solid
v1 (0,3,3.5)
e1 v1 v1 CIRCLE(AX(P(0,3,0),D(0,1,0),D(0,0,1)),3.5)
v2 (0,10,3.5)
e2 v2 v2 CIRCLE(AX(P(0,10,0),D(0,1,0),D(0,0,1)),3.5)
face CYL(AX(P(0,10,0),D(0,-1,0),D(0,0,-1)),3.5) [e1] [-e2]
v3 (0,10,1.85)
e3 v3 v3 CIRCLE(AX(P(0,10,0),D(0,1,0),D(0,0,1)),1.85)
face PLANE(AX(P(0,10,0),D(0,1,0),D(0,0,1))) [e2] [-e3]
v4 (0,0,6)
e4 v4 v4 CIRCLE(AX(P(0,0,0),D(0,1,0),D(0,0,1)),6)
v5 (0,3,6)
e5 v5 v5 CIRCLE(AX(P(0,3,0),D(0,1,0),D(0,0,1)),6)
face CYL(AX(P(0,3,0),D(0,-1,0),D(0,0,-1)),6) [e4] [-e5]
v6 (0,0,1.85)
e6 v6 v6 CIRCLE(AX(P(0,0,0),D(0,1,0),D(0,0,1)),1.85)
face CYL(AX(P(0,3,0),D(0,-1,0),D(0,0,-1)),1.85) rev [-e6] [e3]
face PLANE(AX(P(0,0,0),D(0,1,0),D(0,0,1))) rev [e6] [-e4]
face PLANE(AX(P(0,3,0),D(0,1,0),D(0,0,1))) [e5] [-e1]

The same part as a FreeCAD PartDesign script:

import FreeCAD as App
import Part
import Sketcher
from FreeCAD import Vector

doc = App.newDocument("Part")
body = doc.addObject("PartDesign::Body", "Body")

# Sketch on XZ plane
sketch1 = body.newObject("Sketcher::SketchObject", "Sketch")
sketch1.AttachmentSupport = (doc.getObject("XZ_Plane"), [""])
sketch1.MapMode = "FlatFace"
sketch1.addGeometry([
    Part.Circle(Vector(0, 0, 0), Vector(0, 0, 1), 6),
    Part.Circle(Vector(0, 0, 0), Vector(0, 0, 1), 1.9),
], False)
sketch1.addConstraint([
    Sketcher.Constraint("Coincident", 0, 3, -1, 1),
    Sketcher.Constraint("Coincident", 1, 3, -1, 1),
    Sketcher.Constraint("Diameter", 0, 12.0),
    Sketcher.Constraint("Diameter", 1, 3.7),
])
pad1 = body.newObject("PartDesign::Pad", "Pad")
pad1.Profile = sketch1
pad1.Length = 3
pad1.Reversed = True

# Sketch on XZ plane
sketch2 = body.newObject("Sketcher::SketchObject", "Sketch001")
sketch2.AttachmentSupport = (doc.getObject("XZ_Plane"), [""])
sketch2.MapMode = "FlatFace"
sketch2.AttachmentOffset = App.Placement(Vector(0, 0, -3), App.Rotation())
sketch2.addGeometry([
    Part.Circle(Vector(0, 0, 0), Vector(0, 0, 1), 3.5),
    Part.Circle(Vector(0, 0, 0), Vector(0, 0, 1), 1.9),
], False)
sketch2.addConstraint([
    Sketcher.Constraint("Coincident", 0, 3, -1, 1),
    Sketcher.Constraint("Coincident", 1, 3, -1, 1),
    Sketcher.Constraint("Diameter", 0, 7.0),
    Sketcher.Constraint("Diameter", 1, 3.7),
])
pad2 = body.newObject("PartDesign::Pad", "Pad001")
pad2.Profile = sketch2
pad2.Length = 7
pad2.Reversed = True

doc.recompute()
